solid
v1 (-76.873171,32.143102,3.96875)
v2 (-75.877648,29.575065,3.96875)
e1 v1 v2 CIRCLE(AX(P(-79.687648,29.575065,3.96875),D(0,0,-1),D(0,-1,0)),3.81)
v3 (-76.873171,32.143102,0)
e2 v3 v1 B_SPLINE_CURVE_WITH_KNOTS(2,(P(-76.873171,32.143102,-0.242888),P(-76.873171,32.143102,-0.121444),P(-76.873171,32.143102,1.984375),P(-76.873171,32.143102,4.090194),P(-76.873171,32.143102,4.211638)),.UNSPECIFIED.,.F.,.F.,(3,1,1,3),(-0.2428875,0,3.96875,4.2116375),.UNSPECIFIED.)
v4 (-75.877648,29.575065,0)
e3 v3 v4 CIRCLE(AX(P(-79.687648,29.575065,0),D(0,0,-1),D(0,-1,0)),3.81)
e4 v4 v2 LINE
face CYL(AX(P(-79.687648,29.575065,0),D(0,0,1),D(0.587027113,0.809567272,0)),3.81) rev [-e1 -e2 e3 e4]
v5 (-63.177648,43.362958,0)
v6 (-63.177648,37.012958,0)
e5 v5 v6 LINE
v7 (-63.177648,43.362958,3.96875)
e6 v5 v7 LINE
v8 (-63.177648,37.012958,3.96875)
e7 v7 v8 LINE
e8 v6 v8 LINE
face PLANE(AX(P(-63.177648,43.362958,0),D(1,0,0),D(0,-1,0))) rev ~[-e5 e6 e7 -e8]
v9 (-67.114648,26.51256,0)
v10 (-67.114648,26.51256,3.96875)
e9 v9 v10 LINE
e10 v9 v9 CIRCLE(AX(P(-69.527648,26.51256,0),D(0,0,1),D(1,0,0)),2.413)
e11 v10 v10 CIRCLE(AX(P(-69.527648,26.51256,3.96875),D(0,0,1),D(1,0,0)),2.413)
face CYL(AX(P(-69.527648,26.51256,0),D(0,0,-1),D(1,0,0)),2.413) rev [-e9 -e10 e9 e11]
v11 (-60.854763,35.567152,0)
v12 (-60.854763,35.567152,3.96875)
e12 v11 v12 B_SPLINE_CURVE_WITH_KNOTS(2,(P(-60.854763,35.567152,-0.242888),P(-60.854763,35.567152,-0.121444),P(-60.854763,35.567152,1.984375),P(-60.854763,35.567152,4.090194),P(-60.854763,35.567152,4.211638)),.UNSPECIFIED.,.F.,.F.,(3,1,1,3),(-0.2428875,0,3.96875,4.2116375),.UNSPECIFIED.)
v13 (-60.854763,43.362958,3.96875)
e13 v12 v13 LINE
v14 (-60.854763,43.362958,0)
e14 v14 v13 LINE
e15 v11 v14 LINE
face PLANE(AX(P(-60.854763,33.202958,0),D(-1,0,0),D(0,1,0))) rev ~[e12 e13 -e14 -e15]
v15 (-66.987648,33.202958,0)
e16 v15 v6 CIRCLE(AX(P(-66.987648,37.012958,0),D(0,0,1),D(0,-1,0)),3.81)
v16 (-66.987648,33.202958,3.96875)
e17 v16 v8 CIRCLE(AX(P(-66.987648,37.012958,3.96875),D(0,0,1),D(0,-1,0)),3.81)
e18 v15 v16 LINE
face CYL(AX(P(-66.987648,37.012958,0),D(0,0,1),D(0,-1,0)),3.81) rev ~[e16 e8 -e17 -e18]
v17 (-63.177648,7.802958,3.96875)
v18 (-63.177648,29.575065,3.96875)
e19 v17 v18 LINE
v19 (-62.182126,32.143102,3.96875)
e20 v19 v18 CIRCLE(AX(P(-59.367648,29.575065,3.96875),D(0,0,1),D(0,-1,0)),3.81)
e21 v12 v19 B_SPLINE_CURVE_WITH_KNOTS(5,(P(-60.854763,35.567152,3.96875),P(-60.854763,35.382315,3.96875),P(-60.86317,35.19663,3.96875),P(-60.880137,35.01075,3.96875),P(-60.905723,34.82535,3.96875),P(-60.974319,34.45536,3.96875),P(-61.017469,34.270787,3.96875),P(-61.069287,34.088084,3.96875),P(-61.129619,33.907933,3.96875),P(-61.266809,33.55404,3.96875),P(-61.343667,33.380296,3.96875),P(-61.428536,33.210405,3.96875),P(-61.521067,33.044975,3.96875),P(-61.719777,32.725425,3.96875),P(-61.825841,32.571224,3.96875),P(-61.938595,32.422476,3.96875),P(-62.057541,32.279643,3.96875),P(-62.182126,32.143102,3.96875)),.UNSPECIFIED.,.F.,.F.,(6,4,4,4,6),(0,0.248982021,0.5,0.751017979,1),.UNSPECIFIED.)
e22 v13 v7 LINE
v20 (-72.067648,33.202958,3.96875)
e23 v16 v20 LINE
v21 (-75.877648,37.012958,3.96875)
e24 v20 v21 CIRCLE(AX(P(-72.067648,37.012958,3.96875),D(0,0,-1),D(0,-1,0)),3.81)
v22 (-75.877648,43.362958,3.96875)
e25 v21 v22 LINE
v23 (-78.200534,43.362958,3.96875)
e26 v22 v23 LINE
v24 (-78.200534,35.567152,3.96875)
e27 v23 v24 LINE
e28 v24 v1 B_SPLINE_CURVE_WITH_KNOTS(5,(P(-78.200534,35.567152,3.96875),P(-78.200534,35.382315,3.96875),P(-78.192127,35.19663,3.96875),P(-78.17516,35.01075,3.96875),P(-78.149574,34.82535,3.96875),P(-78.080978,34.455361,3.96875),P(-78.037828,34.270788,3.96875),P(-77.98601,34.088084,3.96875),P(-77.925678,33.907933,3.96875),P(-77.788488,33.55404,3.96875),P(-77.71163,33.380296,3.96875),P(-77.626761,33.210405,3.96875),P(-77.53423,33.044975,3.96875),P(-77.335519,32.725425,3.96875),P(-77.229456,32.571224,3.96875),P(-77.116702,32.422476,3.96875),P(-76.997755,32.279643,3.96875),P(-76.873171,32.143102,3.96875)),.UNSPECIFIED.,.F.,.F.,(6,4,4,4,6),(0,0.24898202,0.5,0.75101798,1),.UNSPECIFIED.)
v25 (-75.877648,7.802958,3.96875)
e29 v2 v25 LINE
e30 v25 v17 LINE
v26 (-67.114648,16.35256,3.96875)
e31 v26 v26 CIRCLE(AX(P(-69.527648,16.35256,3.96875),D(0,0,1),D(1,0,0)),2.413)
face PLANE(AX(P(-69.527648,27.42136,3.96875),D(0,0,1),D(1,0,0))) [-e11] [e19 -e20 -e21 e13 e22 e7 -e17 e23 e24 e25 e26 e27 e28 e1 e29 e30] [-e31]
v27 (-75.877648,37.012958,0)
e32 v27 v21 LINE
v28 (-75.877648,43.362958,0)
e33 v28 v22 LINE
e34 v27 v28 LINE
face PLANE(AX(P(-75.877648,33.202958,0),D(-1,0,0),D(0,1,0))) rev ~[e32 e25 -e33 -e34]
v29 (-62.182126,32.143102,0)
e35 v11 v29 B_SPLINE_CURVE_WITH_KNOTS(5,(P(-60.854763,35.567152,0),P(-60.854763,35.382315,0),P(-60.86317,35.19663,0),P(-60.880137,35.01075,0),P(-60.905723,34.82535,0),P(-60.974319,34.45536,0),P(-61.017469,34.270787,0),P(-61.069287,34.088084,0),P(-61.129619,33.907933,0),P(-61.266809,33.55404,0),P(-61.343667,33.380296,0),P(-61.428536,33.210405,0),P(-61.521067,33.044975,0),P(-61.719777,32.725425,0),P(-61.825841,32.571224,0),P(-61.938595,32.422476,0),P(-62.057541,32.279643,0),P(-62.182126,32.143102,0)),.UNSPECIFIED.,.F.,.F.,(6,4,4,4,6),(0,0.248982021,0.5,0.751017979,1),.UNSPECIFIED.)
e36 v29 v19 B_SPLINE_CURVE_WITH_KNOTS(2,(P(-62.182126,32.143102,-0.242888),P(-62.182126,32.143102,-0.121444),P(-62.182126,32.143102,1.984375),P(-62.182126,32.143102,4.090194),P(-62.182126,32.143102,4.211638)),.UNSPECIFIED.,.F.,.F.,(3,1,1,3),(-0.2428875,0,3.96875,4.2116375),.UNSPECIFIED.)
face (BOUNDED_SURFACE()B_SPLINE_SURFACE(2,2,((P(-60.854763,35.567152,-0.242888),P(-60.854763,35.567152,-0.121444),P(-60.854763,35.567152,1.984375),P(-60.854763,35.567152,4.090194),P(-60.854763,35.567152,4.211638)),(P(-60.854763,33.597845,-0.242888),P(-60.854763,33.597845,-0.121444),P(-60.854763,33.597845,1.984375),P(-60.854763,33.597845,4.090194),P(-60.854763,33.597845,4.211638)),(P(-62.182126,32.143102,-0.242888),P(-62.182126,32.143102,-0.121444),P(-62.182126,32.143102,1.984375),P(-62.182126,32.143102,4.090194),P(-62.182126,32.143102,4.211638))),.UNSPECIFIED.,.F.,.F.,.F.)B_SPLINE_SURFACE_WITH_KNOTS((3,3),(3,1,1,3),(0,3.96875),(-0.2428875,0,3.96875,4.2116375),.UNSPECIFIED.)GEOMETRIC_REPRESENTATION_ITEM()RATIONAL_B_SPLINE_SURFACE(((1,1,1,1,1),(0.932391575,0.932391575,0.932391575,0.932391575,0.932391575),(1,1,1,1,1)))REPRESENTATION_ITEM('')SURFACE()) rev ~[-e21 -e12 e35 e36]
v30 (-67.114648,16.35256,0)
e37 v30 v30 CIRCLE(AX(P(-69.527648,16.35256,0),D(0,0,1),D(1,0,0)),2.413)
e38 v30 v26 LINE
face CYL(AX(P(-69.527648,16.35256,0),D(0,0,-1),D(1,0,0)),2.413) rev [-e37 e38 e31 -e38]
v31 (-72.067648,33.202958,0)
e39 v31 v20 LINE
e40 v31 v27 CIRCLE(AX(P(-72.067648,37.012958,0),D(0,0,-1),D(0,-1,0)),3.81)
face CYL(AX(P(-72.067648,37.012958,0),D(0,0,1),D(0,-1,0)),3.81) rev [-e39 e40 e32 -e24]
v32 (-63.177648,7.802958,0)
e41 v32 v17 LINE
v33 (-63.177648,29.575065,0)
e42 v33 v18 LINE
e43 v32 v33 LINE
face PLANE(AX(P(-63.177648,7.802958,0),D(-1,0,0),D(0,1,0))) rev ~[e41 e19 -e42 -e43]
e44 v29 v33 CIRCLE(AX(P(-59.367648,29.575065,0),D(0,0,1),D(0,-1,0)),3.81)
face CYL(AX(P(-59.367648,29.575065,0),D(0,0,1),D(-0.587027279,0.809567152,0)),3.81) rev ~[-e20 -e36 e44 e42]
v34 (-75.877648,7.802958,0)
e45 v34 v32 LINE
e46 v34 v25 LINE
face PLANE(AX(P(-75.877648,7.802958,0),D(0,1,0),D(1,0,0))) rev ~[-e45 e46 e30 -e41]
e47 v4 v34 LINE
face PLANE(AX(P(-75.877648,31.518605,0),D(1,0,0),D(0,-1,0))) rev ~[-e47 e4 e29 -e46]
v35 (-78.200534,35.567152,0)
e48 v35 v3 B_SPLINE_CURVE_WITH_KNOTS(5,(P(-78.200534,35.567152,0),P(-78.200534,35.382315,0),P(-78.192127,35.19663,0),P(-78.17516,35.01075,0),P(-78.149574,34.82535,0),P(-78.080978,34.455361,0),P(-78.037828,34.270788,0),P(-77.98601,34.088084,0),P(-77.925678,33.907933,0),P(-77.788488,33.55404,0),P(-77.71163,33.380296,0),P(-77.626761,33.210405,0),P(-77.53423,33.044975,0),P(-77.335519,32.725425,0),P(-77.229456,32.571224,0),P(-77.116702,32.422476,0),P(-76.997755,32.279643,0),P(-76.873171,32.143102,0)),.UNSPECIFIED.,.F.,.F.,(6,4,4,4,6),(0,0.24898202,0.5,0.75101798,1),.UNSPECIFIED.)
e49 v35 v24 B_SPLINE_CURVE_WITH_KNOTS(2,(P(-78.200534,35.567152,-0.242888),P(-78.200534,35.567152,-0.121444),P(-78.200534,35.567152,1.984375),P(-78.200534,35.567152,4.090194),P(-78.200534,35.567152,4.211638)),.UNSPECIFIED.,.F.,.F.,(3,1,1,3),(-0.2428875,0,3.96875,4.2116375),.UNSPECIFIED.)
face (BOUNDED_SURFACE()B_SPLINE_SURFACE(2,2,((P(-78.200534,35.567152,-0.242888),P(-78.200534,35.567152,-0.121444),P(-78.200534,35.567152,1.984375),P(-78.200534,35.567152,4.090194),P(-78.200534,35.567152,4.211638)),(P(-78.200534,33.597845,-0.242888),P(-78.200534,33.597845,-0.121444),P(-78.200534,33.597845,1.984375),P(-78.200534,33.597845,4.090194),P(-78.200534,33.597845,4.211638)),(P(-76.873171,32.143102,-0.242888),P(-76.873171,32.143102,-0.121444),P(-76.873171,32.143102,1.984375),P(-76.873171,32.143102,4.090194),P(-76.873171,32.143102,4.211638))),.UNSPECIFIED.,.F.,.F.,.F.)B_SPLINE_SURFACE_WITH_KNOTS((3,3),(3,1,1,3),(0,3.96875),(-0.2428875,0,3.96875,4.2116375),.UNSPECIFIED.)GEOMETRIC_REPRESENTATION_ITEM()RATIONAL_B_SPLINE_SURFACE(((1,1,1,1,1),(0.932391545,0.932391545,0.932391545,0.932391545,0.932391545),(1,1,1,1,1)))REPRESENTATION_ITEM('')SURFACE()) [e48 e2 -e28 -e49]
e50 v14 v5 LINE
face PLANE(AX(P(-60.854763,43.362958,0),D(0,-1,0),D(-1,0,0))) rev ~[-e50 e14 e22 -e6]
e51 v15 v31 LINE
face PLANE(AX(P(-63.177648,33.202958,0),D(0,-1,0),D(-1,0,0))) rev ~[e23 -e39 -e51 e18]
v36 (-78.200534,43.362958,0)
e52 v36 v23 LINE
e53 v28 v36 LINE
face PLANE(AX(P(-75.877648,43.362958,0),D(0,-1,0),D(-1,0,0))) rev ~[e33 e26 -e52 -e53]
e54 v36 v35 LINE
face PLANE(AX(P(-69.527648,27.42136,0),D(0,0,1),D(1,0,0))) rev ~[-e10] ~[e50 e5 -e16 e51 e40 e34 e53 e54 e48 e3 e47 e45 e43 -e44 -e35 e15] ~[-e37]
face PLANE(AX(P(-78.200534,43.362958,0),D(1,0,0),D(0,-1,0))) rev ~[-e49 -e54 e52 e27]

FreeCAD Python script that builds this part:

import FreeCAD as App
import Part
import Sketcher
Q = App.Units.Quantity


def edges_at(feature, points):
    """Names of the edges that pass closest to the given points."""
    edges = feature.Shape.Edges
    near = lambda p: min(range(len(edges)), key=lambda i: edges[i].distToShape(Part.Vertex(*p))[0])
    return sorted({f"Edge{near(p) + 1}" for p in points})

doc = App.newDocument("Part")
body = doc.addObject("PartDesign::Body", "Body")

sketch1 = body.newObject("Sketcher::SketchObject", "Sketch")
sketch1.AttachmentSupport = (doc.getObject("XY_Plane"), [""])
sketch1.MapMode = "FlatFace"
sketch1.addGeometry(Part.LineSegment(App.Vector(-63.2, 33.2, 0), App.Vector(-75.9, 33.2, 0)), False)
sketch1.addGeometry(Part.LineSegment(App.Vector(-75.9, 33.2, 0), App.Vector(-75.9, 43.4, 0)), False)
sketch1.addGeometry(Part.LineSegment(App.Vector(-75.9, 43.4, 0), App.Vector(-78.2, 43.4, 0)), False)
sketch1.addGeometry(Part.LineSegment(App.Vector(-78.2, 43.4, 0), App.Vector(-78.2, 33.2, 0)), False)
sketch1.addGeometry(Part.LineSegment(App.Vector(-78.2, 33.2, 0), App.Vector(-75.9, 31.5, 0)), False)
sketch1.addGeometry(Part.LineSegment(App.Vector(-75.9, 31.5, 0), App.Vector(-75.9, 7.8, 0)), False)
sketch1.addGeometry(Part.LineSegment(App.Vector(-75.9, 7.8, 0), App.Vector(-63.2, 7.8, 0)), False)
sketch1.addGeometry(Part.LineSegment(App.Vector(-63.2, 7.8, 0), App.Vector(-63.2, 31.5, 0)), False)
sketch1.addGeometry(Part.LineSegment(App.Vector(-63.2, 31.5, 0), App.Vector(-60.9, 33.2, 0)), False)
sketch1.addGeometry(Part.LineSegment(App.Vector(-60.9, 33.2, 0), App.Vector(-60.9, 43.4, 0)), False)
sketch1.addGeometry(Part.LineSegment(App.Vector(-60.9, 43.4, 0), App.Vector(-63.2, 43.4, 0)), False)
sketch1.addGeometry(Part.LineSegment(App.Vector(-63.2, 43.4, 0), App.Vector(-63.2, 33.2, 0)), False)
sketch1.addGeometry(Part.Circle(App.Vector(-69.5, 16.4, 0), App.Vector(0, 0, 1), 2.4), False)
sketch1.addGeometry(Part.Circle(App.Vector(-69.5, 26.5, 0), App.Vector(0, 0, 1), 2.4), False)
sketch1.addConstraint(Sketcher.Constraint("Coincident", 0, 2, 1, 1))
sketch1.addConstraint(Sketcher.Constraint("Coincident", 1, 2, 2, 1))
sketch1.addConstraint(Sketcher.Constraint("Coincident", 2, 2, 3, 1))
sketch1.addConstraint(Sketcher.Constraint("Coincident", 3, 2, 4, 1))
sketch1.addConstraint(Sketcher.Constraint("Coincident", 4, 2, 5, 1))
sketch1.addConstraint(Sketcher.Constraint("Coincident", 5, 2, 6, 1))
sketch1.addConstraint(Sketcher.Constraint("Coincident", 6, 2, 7, 1))
sketch1.addConstraint(Sketcher.Constraint("Coincident", 7, 2, 8, 1))
sketch1.addConstraint(Sketcher.Constraint("Coincident", 8, 2, 9, 1))
sketch1.addConstraint(Sketcher.Constraint("Coincident", 9, 2, 10, 1))
sketch1.addConstraint(Sketcher.Constraint("Coincident", 10, 2, 11, 1))
sketch1.addConstraint(Sketcher.Constraint("Coincident", 11, 2, 0, 1))
sketch1.addConstraint(Sketcher.Constraint("Horizontal", 0))
sketch1.addConstraint(Sketcher.Constraint("Vertical", 1))
sketch1.addConstraint(Sketcher.Constraint("Horizontal", 2))
sketch1.addConstraint(Sketcher.Constraint("Vertical", 3))
sketch1.addConstraint(Sketcher.Constraint("Vertical", 5))
sketch1.addConstraint(Sketcher.Constraint("Horizontal", 6))
sketch1.addConstraint(Sketcher.Constraint("Vertical", 7))
sketch1.addConstraint(Sketcher.Constraint("Vertical", 9))
sketch1.addConstraint(Sketcher.Constraint("Horizontal", 10))
sketch1.addConstraint(Sketcher.Constraint("Vertical", 11))
sketch1.addConstraint(Sketcher.Constraint("Equal", 12, 13))
sketch1.addConstraint(Sketcher.Constraint("Horizontal", 0, 2, 3, 2))
sketch1.addConstraint(Sketcher.Constraint("Horizontal", 4, 2, 7, 2))
sketch1.addConstraint(Sketcher.Constraint("Horizontal", 3, 2, 8, 2))
sketch1.addConstraint(Sketcher.Constraint("Horizontal", 2, 2, 9, 2))
sketch1.addConstraint(Sketcher.Constraint("Vertical", 12, 3, 13, 3))
sketch1.addConstraint(Sketcher.Constraint("Vertical", 1, 2, 4, 2))
sketch1.addConstraint(Sketcher.Constraint("Vertical", 7, 2, 10, 2))
sketch1.addConstraint(Sketcher.Constraint("Equal", 2, 10))
sketch1.addConstraint(Sketcher.Constraint("Diameter", 12, Q("0.19 in")))
sketch1.addConstraint(Sketcher.Constraint("DistanceX", 0, 2, 0, 1, Q("0.5 in")))
sketch1.addConstraint(Sketcher.Constraint("DistanceY", 1, 1, 1, 2, Q("0.4 in")))
sketch1.addConstraint(Sketcher.Constraint("DistanceY", 5, 2, 0, 2, Q("1 in")))
sketch1.addConstraint(Sketcher.Constraint("DistanceY", 12, 3, 13, 3, Q("0.4 in")))
sketch1.addConstraint(Sketcher.Constraint("DistanceX", 0, 2, 13, 3, Q("0.25 in")))
sketch1.addConstraint(Sketcher.Constraint("DistanceY", 13, 3, 0, 2, Q("6.690398 mm")))
sketch1.addConstraint(Sketcher.Constraint("DistanceX", 2, 2, 2, 1, Q("2.322886 mm")))
sketch1.addConstraint(Sketcher.Constraint("DistanceY", 5, 2, 5, 1, Q("23.715647 mm")))
sketch1.addConstraint(Sketcher.Constraint("DistanceX", 12, 3, -1, 1, Q("69.527648 mm")))
sketch1.addConstraint(Sketcher.Constraint("DistanceY", -1, 1, 12, 3, Q("16.35256 mm")))
pad1 = body.newObject("PartDesign::Pad", "Pad")
pad1.Profile = sketch1
pad1.Length = Q("0.15625 in")
doc.recompute()

fillet = body.newObject("PartDesign::Fillet", "Fillet")
fillet.Base = (pad1, edges_at(pad1, [
    (-63.178, 31.519, 1.984),
    (-75.878, 31.519, 1.984),
    (-63.178, 33.203, 1.984),
    (-75.878, 33.203, 1.984),
]))
fillet.Radius = Q("0.15 in")
doc.recompute()

fillet2 = body.newObject("PartDesign::Fillet", "Fillet001")
fillet2.Base = (fillet, edges_at(fillet, [(-78.201, 33.203, 1.984), (-60.855, 33.203, 1.984)]))
fillet2.Radius = Q("0.2 in")

doc.recompute()
